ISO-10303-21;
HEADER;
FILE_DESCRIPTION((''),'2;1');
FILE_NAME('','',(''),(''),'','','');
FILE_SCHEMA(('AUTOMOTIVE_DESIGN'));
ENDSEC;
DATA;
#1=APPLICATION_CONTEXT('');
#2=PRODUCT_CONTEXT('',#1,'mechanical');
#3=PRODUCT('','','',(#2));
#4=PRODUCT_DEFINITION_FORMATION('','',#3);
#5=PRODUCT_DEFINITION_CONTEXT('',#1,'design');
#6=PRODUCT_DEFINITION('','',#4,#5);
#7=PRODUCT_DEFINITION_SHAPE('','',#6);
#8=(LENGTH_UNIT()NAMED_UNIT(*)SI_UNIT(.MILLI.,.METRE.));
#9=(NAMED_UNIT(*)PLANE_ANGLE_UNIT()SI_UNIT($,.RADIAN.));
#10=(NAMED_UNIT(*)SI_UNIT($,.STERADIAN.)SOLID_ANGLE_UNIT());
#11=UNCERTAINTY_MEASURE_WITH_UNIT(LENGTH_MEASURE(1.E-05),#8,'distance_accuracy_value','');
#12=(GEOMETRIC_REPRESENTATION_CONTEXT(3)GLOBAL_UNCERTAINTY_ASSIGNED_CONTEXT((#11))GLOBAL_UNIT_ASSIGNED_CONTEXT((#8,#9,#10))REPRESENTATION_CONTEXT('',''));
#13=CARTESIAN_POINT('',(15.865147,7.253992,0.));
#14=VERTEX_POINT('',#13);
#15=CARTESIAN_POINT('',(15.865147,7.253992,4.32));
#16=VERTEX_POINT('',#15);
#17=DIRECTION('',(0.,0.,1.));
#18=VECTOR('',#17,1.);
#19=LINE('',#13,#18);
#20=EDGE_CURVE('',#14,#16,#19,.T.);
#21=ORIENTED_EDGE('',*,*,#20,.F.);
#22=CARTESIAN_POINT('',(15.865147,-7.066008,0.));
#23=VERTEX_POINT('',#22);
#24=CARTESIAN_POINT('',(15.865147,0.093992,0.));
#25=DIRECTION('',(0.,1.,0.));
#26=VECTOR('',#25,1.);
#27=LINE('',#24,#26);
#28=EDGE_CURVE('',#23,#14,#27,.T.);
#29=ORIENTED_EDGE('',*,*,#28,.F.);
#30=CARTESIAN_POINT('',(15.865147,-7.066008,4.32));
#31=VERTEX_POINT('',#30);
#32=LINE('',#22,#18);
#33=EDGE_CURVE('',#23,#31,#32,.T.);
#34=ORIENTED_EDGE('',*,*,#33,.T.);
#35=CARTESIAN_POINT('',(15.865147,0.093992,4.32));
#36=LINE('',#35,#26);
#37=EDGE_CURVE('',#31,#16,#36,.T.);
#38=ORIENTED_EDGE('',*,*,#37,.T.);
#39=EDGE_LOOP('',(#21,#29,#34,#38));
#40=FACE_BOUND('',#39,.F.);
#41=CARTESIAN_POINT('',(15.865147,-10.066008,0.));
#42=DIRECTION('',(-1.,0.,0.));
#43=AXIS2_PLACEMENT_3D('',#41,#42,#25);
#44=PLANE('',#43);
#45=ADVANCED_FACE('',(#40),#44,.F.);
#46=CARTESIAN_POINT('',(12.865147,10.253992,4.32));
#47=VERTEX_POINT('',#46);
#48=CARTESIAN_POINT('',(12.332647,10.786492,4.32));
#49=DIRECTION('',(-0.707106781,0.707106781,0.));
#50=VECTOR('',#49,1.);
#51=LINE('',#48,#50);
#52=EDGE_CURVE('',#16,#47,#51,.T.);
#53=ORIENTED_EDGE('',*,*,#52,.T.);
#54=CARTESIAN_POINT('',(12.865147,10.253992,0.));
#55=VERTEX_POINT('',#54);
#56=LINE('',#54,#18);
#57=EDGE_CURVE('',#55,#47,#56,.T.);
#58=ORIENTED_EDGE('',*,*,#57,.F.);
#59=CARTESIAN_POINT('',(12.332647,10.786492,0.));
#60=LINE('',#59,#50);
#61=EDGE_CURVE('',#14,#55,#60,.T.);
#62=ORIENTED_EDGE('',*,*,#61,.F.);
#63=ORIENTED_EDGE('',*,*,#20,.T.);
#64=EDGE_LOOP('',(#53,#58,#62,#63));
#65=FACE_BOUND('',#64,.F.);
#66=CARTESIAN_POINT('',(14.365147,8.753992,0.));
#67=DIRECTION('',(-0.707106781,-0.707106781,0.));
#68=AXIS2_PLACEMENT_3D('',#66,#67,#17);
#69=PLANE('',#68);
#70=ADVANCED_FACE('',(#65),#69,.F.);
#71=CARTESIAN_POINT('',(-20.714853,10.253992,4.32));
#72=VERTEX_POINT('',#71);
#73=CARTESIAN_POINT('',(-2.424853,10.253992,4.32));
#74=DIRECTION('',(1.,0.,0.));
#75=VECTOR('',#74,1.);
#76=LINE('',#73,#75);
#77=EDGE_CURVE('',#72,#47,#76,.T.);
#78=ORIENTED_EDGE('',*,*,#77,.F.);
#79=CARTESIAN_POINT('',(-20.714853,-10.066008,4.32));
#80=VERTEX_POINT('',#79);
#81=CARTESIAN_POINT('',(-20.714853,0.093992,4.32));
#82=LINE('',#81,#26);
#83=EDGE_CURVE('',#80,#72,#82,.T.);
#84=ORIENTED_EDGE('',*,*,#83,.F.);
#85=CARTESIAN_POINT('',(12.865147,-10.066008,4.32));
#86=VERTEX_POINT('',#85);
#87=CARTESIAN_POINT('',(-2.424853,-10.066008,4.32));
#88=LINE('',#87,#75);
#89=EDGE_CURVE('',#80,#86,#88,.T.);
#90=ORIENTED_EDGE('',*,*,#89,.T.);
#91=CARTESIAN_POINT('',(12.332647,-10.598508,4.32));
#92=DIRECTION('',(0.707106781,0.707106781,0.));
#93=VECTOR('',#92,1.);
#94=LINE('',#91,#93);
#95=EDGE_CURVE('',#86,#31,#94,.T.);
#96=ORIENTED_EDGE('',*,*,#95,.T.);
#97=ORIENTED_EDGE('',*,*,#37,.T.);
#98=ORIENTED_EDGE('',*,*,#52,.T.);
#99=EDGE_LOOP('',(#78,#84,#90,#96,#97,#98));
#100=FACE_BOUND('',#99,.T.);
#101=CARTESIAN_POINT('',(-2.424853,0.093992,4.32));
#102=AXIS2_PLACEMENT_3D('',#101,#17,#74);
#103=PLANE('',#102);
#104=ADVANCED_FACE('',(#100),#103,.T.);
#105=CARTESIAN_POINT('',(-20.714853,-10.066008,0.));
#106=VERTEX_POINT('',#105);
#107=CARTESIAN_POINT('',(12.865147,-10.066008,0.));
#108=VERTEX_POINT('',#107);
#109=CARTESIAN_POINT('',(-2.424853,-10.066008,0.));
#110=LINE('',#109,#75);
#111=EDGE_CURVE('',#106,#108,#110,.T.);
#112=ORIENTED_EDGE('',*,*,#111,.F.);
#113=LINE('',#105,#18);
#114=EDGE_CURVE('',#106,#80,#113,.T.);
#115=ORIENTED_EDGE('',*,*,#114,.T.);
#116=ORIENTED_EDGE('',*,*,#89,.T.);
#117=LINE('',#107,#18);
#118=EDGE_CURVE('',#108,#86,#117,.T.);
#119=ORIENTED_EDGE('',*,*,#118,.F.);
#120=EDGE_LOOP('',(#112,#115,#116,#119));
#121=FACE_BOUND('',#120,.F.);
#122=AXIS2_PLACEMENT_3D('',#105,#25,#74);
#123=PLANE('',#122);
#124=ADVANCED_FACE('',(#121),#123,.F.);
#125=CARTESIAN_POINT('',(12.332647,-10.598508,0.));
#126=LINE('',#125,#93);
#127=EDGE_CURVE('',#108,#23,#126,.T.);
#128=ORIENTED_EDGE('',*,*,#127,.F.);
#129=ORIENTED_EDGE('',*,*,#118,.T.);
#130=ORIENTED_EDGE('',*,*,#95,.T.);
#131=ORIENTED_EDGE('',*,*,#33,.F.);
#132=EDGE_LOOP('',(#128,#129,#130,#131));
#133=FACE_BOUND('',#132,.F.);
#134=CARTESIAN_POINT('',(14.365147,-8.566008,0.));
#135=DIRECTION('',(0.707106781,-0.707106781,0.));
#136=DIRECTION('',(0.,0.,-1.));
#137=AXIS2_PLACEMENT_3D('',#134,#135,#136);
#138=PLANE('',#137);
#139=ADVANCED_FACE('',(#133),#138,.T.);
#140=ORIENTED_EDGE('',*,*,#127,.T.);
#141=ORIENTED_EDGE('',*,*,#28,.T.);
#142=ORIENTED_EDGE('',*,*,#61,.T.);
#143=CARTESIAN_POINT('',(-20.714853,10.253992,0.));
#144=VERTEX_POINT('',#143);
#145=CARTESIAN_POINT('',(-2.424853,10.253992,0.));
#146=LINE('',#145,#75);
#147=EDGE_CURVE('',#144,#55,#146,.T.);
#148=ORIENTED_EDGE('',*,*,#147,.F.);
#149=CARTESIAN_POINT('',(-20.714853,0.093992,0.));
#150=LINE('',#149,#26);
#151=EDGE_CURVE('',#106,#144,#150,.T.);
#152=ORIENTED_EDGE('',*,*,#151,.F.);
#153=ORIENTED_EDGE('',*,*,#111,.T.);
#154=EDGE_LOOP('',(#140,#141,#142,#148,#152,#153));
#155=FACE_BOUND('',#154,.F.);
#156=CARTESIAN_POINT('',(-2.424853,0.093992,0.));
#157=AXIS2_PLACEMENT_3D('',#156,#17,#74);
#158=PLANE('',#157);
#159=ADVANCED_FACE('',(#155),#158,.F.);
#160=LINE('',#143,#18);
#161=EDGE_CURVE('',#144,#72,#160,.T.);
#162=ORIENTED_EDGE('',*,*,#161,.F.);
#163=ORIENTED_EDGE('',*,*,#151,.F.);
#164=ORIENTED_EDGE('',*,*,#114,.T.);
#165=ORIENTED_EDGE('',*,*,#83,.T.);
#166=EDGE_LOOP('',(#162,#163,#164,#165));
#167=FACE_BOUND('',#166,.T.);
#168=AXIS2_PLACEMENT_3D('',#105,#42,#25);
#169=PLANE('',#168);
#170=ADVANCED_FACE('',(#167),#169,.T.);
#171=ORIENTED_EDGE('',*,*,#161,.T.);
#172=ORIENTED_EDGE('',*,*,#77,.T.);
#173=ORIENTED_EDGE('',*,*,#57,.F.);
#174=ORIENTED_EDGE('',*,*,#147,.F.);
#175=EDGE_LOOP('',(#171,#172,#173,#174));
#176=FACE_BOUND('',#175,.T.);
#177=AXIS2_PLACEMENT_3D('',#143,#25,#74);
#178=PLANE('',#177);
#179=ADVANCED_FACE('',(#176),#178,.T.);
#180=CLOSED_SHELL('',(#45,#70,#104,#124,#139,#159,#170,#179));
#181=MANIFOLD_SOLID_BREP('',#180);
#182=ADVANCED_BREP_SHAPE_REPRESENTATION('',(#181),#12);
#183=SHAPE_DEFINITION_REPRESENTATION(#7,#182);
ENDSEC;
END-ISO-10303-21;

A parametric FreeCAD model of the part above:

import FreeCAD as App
import Part
import Sketcher
from FreeCAD import Vector
Q = App.Units.Quantity


def edges_at(feature, points):
    """Names of the edges that pass closest to the given points."""
    edges = feature.Shape.Edges
    near = lambda p: min(range(len(edges)), key=lambda i: edges[i].distToShape(Part.Vertex(*p))[0])
    return sorted({f"Edge{near(p) + 1}" for p in points})


def add_polygon(sketch, points):
    """Adds a closed chain of lines whose ends are joined by coincident constraints."""
    first, n = sketch.GeometryCount, len(points)
    for a, b in zip(points, points[1:] + points[:1]):
        sketch.addGeometry(Part.LineSegment(App.Vector(*a, 0), App.Vector(*b, 0)), False)
    for i in range(n):
        sketch.addConstraint(Sketcher.Constraint("Coincident", first + i, 2, first + (i + 1) % n, 1))

doc = App.newDocument("Part")
params = doc.addObject("Spreadsheet::Sheet", "Params")
for row, (alias, value) in enumerate([
    ("sketch1_width", "36.58 mm"),
    ("sketch1_height", "20.32 mm"),
    ("pad1_length", "4.32 mm"),
    ("chamfer_size", "3 mm"),
], start=1):
    params.set(f"A{row}", alias)
    params.set(f"B{row}", "=" + value)
    params.setAlias(f"B{row}", alias)

body = doc.addObject("PartDesign::Body", "Body")

sketch1 = body.newObject("Sketcher::SketchObject", "Sketch")
sketch1.AttachmentSupport = (doc.getObject("XY_Plane"), [""])
sketch1.MapMode = "FlatFace"
add_polygon(sketch1, [(-20.714853, 10.253992), (-20.714853, -10.066008), (15.865147, -10.066008), (15.865147, 10.253992)])
sketch1.addConstraint([
    Sketcher.Constraint("Vertical", 0),
    Sketcher.Constraint("Horizontal", 1),
    Sketcher.Constraint("Vertical", 2),
    Sketcher.Constraint("Horizontal", 3),
    Sketcher.Constraint("DistanceX", 1, 1, 1, 2, Q("36.58 mm")),
    Sketcher.Constraint("DistanceY", 0, 2, 0, 1, Q("20.32 mm")),
    Sketcher.Constraint("DistanceX", 0, 2, -1, 1, Q("20.714853 mm")),
    Sketcher.Constraint("DistanceY", 0, 2, -1, 1, Q("10.066008 mm")),
])
sketch1.setExpression("Constraints[8]", "Params.sketch1_width")
sketch1.setExpression("Constraints[9]", "Params.sketch1_height")
pad1 = body.newObject("PartDesign::Pad", "Pad")
pad1.Profile = sketch1
pad1.setExpression("Length", "Params.pad1_length")
doc.recompute()

chamfer = body.newObject("PartDesign::Chamfer", "Chamfer")
chamfer.Base = (pad1, edges_at(pad1, [(15.865, 10.254, 2.16), (15.865, -10.066, 2.16)]))
chamfer.setExpression("Size", "Params.chamfer_size")

doc.recompute()
